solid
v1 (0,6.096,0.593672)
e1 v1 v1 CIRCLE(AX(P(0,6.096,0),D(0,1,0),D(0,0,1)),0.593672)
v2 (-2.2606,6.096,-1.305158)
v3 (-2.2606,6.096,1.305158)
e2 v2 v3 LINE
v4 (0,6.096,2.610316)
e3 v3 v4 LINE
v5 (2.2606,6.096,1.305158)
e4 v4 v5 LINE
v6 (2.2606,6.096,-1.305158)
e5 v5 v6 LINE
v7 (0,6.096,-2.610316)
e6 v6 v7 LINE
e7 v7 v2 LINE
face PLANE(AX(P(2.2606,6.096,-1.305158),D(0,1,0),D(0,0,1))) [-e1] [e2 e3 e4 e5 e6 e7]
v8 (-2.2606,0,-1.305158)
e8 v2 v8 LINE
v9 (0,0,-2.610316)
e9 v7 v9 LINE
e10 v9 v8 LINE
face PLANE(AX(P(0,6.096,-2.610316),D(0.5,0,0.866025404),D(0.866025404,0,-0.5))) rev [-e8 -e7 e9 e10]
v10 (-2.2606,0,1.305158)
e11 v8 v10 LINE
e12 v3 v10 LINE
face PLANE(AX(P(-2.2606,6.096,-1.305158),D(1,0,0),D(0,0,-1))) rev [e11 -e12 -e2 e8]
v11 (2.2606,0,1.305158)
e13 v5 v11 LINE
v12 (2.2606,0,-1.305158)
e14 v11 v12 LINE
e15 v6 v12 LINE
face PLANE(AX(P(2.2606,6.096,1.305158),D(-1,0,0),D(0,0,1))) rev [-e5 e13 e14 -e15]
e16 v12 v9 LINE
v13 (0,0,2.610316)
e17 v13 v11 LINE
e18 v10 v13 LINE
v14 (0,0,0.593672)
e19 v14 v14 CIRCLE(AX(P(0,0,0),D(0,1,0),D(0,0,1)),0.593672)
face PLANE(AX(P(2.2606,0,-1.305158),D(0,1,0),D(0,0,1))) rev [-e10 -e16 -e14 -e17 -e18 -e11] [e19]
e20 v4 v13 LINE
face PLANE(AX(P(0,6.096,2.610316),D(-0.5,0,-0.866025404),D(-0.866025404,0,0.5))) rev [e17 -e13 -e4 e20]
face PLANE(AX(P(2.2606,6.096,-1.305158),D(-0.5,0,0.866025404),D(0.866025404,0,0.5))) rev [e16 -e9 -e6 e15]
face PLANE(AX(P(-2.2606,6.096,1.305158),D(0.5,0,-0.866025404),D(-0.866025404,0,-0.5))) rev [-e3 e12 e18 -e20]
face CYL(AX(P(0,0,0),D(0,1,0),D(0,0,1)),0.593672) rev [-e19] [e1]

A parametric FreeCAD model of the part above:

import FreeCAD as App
import Part
import Sketcher
from FreeCAD import Vector
Q = App.Units.Quantity

doc = App.newDocument("Part")
body = doc.addObject("PartDesign::Body", "Body")

# Sketch on XZ plane
sketch1 = body.newObject("Sketcher::SketchObject", "Sketch")
sketch1.AttachmentSupport = (doc.getObject("XZ_Plane"), [""])
sketch1.MapMode = "FlatFace"
sketch1.addGeometry([
    Part.LineSegment(Vector(2.3, -1.3, 0), Vector(0, -2.6, 0)),  # 0
    Part.LineSegment(Vector(0, -2.6, 0), Vector(-2.3, -1.3, 0)),  # 1
    Part.LineSegment(Vector(-2.3, -1.3, 0), Vector(-2.3, 1.3, 0)),  # 2
    Part.LineSegment(Vector(-2.3, 1.3, 0), Vector(0, 2.6, 0)),  # 3
    Part.LineSegment(Vector(0, 2.6, 0), Vector(2.3, 1.3, 0)),  # 4
    Part.LineSegment(Vector(2.3, 1.3, 0), Vector(2.3, -1.3, 0)),  # 5
], False)
sketch1.addConstraint([
    Sketcher.Constraint("Coincident", 0, 2, 1, 1),
    Sketcher.Constraint("Coincident", 1, 2, 2, 1),
    Sketcher.Constraint("Coincident", 2, 2, 3, 1),
    Sketcher.Constraint("Coincident", 3, 2, 4, 1),
    Sketcher.Constraint("Coincident", 4, 2, 5, 1),
    Sketcher.Constraint("Coincident", 5, 2, 0, 1),
    Sketcher.Constraint("Vertical", 2),
    Sketcher.Constraint("Vertical", 5),
    Sketcher.Constraint("Symmetric", 0, 2, 3, 2, -1, 1),
    Sketcher.Constraint("Symmetric", 1, 2, 4, 2, -1, 1),
    Sketcher.Constraint("PointOnObject", 0, 2, -2),
    Sketcher.Constraint("Parallel", 0, 3),
    Sketcher.Constraint("Horizontal", 2, 2, 4, 2),
    Sketcher.Constraint("Angle", 0, Q("-150 deg")),
    Sketcher.Constraint("DistanceX", 1, 2, -1, 1, Q("0.089 in")),
    Sketcher.Constraint("DistanceY", 2, 1, 2, 2, Q("2.610316 mm")),
])
pad1 = body.newObject("PartDesign::Pad", "Pad")
pad1.Profile = sketch1
pad1.Length = Q("0.24 in")
pad1.Reversed = True

# Sketch on XZ plane
sketch2 = body.newObject("Sketcher::SketchObject", "Sketch001")
sketch2.AttachmentSupport = (doc.getObject("XZ_Plane"), [""])
sketch2.MapMode = "FlatFace"
sketch2.AttachmentOffset = App.Placement(Vector(0, 0, -0.24 * 25.4), App.Rotation())
sketch2.addGeometry(Part.Circle(Vector(0, 0, 0), Vector(0, 0, 1), 0.6), False)
sketch2.addConstraint([
    Sketcher.Constraint("Coincident", 0, 3, -1, 1),
    Sketcher.Constraint("Diameter", 0, Q("1.187344 mm")),
])
pocket1 = body.newObject("PartDesign::Pocket", "Pocket")
pocket1.Profile = sketch2
pocket1.Type = "ThroughAll"
pocket1.Reversed = True

doc.recompute()
